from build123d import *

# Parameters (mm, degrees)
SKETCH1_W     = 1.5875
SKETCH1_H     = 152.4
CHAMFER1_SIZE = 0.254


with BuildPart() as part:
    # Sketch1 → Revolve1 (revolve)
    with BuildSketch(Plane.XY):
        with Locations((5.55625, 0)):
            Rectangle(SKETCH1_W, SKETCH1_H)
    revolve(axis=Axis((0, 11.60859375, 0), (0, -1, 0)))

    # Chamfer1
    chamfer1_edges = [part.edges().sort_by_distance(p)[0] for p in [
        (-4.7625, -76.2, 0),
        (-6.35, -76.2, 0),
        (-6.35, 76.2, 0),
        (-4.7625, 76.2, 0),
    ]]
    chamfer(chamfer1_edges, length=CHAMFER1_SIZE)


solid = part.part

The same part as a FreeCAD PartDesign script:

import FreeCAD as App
import Part
import Sketcher

V = App.Vector
Q = App.Units.Quantity


def edges_at(feature, points):
    """Names of the edges that pass closest to the given points."""
    edges = feature.Shape.Edges
    near = lambda p: min(range(len(edges)), key=lambda i: edges[i].distToShape(Part.Vertex(*p))[0])
    return sorted({f"Edge{near(p) + 1}" for p in points})


def add_polygon(sketch, points):
    """Adds a closed chain of lines whose ends are joined by coincident constraints."""
    first, n = sketch.GeometryCount, len(points)
    for a, b in zip(points, points[1:] + points[:1]):
        sketch.addGeometry(Part.LineSegment(App.Vector(*a, 0), App.Vector(*b, 0)), False)
    for i in range(n):
        sketch.addConstraint(Sketcher.Constraint("Coincident", first + i, 2, first + (i + 1) % n, 1))

doc = App.newDocument("Part")
body = doc.addObject("PartDesign::Body", "Body")

# Sketch on XY plane
sketch1 = body.newObject("Sketcher::SketchObject", "Sketch")
sketch1.AttachmentSupport = (doc.getObject("XY_Plane"), [""])
sketch1.MapMode = "FlatFace"
add_polygon(sketch1, [(4.7625, 76.2), (4.7625, -76.2), (6.35, -76.2), (6.35, 76.2)])  # lines 0-3
sketch1.addConstraint(Sketcher.Constraint("Vertical", 0))
sketch1.addConstraint(Sketcher.Constraint("Horizontal", 1))
sketch1.addConstraint(Sketcher.Constraint("Vertical", 2))
sketch1.addConstraint(Sketcher.Constraint("Horizontal", 3))
sketch1.addConstraint(Sketcher.Constraint("DistanceY", 0, 2, 0, 1, Q("6 in")))
sketch1.addConstraint(Sketcher.Constraint("DistanceY", 0, 2, -1, 1, Q("3 in")))
sketch1.addConstraint(Sketcher.Constraint("DistanceX", 1, 1, 1, 2, Q("0.0625 in")))
sketch1.addConstraint(Sketcher.Constraint("DistanceX", -1, 1, 1, 2, Q("0.25 in")))
revolution = body.newObject("PartDesign::Revolution", "Revolution")
revolution.Profile = sketch1
revolution.ReferenceAxis = (sketch1, ["V_Axis"])
revolution.Angle = 360
doc.recompute()

chamfer = body.newObject("PartDesign::Chamfer", "Chamfer")
chamfer.Base = (revolution, edges_at(revolution, [
    (-4.763, -76.2, 0),
    (-6.35, -76.2, 0),
    (-6.35, 76.2, 0),
    (-4.763, 76.2, 0),
]))
chamfer.Size = Q("0.01 in")

doc.recompute()
